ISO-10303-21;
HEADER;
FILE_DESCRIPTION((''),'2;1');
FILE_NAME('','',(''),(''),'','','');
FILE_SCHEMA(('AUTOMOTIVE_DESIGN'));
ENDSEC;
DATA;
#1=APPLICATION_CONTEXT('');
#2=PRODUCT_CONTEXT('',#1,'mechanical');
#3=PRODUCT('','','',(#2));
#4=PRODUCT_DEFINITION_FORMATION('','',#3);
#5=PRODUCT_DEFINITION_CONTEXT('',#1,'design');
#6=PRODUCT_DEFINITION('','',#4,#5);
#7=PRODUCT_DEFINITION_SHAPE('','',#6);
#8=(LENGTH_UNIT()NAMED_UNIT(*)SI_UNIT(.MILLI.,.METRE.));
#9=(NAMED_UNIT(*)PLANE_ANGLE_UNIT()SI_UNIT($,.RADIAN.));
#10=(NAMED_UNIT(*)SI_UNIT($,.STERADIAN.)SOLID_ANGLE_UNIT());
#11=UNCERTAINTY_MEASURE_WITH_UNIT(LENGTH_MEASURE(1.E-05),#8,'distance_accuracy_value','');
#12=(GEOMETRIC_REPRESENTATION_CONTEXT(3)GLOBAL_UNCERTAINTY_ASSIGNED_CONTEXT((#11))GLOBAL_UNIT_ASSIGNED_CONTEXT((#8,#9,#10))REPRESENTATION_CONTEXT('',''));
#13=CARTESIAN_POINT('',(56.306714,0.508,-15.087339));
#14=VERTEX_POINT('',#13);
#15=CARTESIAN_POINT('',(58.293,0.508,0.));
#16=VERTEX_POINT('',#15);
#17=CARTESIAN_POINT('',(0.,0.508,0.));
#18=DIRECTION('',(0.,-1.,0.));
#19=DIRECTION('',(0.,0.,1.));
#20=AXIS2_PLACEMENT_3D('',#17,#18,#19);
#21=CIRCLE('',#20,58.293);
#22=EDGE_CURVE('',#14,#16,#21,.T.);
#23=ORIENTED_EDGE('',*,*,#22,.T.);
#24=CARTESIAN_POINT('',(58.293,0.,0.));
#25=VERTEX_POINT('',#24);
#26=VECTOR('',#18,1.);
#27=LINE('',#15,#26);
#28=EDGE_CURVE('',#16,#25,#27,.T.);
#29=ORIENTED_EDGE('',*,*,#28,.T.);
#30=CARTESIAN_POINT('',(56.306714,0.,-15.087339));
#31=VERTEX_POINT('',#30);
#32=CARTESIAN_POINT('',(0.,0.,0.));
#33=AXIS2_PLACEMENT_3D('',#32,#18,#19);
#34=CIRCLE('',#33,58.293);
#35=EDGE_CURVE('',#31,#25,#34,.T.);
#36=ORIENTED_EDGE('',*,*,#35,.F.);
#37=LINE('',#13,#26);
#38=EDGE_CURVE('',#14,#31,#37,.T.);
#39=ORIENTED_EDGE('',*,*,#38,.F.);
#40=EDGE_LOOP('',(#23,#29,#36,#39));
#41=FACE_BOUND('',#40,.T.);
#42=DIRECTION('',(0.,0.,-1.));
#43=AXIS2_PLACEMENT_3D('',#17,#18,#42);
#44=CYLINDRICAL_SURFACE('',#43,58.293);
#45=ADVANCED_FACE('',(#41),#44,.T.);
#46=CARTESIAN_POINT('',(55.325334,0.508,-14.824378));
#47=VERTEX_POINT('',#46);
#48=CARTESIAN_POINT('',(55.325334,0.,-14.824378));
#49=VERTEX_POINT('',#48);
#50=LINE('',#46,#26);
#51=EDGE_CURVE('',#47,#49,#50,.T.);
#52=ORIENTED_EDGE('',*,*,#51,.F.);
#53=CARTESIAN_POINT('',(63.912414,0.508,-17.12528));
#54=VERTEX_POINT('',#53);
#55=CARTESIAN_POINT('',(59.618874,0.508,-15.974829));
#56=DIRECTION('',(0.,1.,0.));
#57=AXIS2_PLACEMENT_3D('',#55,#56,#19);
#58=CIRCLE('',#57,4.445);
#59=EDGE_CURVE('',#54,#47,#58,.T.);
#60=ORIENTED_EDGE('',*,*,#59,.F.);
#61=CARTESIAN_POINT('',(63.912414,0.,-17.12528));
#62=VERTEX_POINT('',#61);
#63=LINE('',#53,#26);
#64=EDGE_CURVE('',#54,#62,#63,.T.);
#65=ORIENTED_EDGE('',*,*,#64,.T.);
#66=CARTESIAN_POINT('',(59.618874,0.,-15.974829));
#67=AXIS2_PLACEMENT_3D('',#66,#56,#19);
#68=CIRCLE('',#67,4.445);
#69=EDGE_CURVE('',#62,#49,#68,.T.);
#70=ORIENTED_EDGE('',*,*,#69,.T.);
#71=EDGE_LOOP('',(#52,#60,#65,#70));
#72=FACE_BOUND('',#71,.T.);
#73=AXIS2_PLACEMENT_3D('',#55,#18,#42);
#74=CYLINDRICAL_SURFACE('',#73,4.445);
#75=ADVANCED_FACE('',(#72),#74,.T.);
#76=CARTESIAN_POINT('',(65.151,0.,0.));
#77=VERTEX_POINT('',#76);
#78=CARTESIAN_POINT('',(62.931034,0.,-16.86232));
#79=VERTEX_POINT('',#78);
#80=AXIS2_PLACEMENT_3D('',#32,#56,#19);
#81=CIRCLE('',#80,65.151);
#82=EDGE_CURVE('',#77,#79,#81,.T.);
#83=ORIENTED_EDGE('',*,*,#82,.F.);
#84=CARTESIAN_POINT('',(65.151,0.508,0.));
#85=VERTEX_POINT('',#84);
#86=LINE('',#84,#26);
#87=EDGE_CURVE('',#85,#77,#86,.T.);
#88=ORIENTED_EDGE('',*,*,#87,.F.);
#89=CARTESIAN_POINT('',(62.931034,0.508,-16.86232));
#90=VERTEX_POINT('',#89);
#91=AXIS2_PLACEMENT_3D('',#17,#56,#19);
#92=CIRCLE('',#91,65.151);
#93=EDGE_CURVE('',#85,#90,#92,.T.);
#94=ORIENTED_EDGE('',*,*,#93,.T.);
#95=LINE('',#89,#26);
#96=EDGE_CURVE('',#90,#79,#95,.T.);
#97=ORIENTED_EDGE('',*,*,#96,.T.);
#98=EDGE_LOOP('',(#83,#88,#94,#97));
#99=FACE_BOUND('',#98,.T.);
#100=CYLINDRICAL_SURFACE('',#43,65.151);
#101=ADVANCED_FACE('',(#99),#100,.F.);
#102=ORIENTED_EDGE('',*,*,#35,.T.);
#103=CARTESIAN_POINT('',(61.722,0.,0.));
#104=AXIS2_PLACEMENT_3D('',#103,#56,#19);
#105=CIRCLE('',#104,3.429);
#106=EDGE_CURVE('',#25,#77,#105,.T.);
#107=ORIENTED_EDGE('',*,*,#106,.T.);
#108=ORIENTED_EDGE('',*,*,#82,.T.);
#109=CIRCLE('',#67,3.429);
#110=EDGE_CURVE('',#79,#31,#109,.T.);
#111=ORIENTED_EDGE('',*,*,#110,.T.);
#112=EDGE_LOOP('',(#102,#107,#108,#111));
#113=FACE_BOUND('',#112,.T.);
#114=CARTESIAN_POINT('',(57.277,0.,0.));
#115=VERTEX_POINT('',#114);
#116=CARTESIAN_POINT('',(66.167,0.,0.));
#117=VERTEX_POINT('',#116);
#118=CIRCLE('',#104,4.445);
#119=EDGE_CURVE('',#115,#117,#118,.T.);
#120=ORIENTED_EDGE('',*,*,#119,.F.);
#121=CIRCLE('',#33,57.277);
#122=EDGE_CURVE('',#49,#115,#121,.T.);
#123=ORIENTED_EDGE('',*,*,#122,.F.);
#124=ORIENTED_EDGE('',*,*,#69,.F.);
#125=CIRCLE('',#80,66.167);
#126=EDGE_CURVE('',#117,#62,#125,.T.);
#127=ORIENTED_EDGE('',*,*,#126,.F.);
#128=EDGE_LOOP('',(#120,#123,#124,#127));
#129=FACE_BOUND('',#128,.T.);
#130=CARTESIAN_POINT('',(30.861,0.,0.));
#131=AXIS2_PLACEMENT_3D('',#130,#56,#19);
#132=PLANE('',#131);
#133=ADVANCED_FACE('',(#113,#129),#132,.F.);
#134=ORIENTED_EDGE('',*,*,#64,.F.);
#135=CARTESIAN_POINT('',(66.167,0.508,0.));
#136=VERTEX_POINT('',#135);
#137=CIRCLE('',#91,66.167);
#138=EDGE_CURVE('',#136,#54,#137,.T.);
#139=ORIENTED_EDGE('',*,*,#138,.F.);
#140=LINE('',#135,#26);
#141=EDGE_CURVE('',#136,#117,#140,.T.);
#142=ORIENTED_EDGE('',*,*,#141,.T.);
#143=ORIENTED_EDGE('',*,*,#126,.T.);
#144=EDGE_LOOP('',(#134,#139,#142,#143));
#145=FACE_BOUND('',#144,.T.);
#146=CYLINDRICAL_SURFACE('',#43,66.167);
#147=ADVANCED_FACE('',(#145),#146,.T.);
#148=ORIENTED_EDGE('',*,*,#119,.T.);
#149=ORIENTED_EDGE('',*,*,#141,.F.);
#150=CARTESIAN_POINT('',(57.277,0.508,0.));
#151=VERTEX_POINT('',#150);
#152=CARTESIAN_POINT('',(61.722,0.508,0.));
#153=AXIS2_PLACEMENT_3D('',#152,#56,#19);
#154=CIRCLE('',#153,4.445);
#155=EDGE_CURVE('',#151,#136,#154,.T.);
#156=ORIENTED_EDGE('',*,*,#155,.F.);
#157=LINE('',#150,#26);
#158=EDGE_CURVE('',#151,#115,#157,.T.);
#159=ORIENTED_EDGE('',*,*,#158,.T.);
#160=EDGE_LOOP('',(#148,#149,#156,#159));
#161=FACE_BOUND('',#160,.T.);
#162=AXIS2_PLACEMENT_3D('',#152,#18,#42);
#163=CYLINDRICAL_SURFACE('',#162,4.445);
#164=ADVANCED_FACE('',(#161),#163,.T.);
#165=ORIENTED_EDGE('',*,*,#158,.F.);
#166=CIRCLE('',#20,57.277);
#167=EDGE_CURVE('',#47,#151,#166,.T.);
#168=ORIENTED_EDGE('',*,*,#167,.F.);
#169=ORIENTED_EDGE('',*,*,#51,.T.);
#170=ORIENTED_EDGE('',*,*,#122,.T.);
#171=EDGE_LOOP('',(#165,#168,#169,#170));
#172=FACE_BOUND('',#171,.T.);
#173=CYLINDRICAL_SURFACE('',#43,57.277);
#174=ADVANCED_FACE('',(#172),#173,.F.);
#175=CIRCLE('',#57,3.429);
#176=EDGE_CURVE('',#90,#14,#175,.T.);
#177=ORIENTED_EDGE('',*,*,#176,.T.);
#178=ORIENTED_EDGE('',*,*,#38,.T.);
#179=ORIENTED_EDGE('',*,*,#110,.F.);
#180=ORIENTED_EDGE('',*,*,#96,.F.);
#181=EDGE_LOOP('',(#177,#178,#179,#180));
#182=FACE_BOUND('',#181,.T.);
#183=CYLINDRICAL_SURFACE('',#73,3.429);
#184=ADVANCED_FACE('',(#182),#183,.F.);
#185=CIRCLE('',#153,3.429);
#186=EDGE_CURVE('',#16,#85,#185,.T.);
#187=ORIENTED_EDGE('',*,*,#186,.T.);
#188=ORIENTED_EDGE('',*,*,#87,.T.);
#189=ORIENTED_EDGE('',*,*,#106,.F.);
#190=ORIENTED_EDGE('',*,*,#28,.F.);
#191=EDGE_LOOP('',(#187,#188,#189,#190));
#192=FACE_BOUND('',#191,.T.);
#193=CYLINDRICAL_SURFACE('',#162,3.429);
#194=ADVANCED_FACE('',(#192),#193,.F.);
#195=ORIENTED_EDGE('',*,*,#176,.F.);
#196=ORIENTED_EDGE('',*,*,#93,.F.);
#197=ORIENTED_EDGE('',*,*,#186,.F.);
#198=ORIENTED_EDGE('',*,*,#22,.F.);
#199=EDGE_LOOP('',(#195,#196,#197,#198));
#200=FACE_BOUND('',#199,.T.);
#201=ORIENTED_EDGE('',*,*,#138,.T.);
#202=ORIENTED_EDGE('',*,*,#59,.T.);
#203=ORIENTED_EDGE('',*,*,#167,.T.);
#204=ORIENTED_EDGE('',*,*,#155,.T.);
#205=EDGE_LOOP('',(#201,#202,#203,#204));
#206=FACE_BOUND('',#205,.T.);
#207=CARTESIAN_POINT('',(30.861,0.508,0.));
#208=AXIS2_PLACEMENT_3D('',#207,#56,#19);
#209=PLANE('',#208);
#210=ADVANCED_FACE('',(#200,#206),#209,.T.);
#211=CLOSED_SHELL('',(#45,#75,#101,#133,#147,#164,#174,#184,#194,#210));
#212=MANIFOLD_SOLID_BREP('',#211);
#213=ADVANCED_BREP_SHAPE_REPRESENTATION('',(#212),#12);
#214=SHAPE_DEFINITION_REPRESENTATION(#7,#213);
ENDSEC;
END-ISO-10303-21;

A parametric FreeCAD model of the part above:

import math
import FreeCAD as App
import Part
import Sketcher
from FreeCAD import Vector
Q = App.Units.Quantity

doc = App.newDocument("Part")
body = doc.addObject("PartDesign::Body", "Body")

# Sketch on XZ plane
sketch1 = body.newObject("Sketcher::SketchObject", "Sketch")
sketch1.AttachmentSupport = (doc.getObject("XZ_Plane"), [""])
sketch1.MapMode = "FlatFace"
sketch1.addGeometry(Part.ArcOfCircle(Part.Circle(Vector(0, 0, 0), Vector(0, 0, 1), 66.167), math.radians(-15), math.radians(0)), False)
sketch1.addGeometry(Part.ArcOfCircle(Part.Circle(Vector(59.618874, -15.974829, 0), Vector(0, 0, 1), 4.445), math.radians(165), math.radians(345)), False)
sketch1.addGeometry(Part.ArcOfCircle(Part.Circle(Vector(0, 0, 0), Vector(0, 0, 1), 57.277), math.radians(-15), math.radians(0)), False)
sketch1.addGeometry(Part.ArcOfCircle(Part.Circle(Vector(61.722, 0, 0), Vector(0, 0, 1), 4.445), math.radians(0), math.radians(180)), False)
sketch1.addGeometry(Part.ArcOfCircle(Part.Circle(Vector(0, 0, 0), Vector(0, 0, 1), 65.151), math.radians(-15), math.radians(0)), False)
sketch1.addGeometry(Part.ArcOfCircle(Part.Circle(Vector(61.722, 0, 0), Vector(0, 0, 1), 3.429), math.radians(0), math.radians(180)), False)
sketch1.addGeometry(Part.ArcOfCircle(Part.Circle(Vector(0, 0, 0), Vector(0, 0, 1), 58.293), math.radians(-15), math.radians(0)), False)
sketch1.addGeometry(Part.ArcOfCircle(Part.Circle(Vector(59.618874, -15.974829, 0), Vector(0, 0, 1), 3.429), math.radians(165), math.radians(345)), False)
sketch1.addConstraint(Sketcher.Constraint("Coincident", 0, 1, 1, 2))
sketch1.addConstraint(Sketcher.Constraint("Coincident", 1, 1, 2, 1))
sketch1.addConstraint(Sketcher.Constraint("Coincident", 2, 2, 3, 2))
sketch1.addConstraint(Sketcher.Constraint("Coincident", 3, 1, 0, 2))
sketch1.addConstraint(Sketcher.Constraint("Coincident", 4, 2, 5, 1))
sketch1.addConstraint(Sketcher.Constraint("Coincident", 5, 2, 6, 2))
sketch1.addConstraint(Sketcher.Constraint("Coincident", 6, 1, 7, 1))
sketch1.addConstraint(Sketcher.Constraint("Coincident", 7, 2, 4, 1))
sketch1.addConstraint(Sketcher.Constraint("Coincident", 0, 3, -1, 1))
sketch1.addConstraint(Sketcher.Constraint("Coincident", 2, 3, -1, 1))
sketch1.addConstraint(Sketcher.Constraint("Coincident", 4, 3, -1, 1))
sketch1.addConstraint(Sketcher.Constraint("Coincident", 6, 3, -1, 1))
sketch1.addConstraint(Sketcher.Constraint("Coincident", 5, 3, 3, 3))
sketch1.addConstraint(Sketcher.Constraint("PointOnObject", 3, 3, -1))
sketch1.addConstraint(Sketcher.Constraint("PointOnObject", 2, 2, -1))
sketch1.addConstraint(Sketcher.Constraint("PointOnObject", 3, 1, -1))
sketch1.addConstraint(Sketcher.Constraint("PointOnObject", 4, 2, -1))
sketch1.addConstraint(Sketcher.Constraint("PointOnObject", 5, 2, -1))
sketch1.addConstraint(Sketcher.Constraint("Radius", 0, Q("2.605 in")))
sketch1.addConstraint(Sketcher.Constraint("Radius", 1, Q("0.175 in")))
sketch1.addConstraint(Sketcher.Constraint("Radius", 4, Q("2.565 in")))
sketch1.addConstraint(Sketcher.Constraint("DistanceX", 6, 1, 1, 3, Q("0.1304 in")))
sketch1.addConstraint(Sketcher.Constraint("DistanceX", 6, 1, 7, 3, Q("0.1304 in")))
sketch1.addConstraint(Sketcher.Constraint("DistanceX", 7, 3, 7, 2, Q("0.1304 in")))
sketch1.addConstraint(Sketcher.Constraint("DistanceY", 0, 1, 1, 1, 2.300901))
sketch1.addConstraint(Sketcher.Constraint("DistanceX", 6, 1, 0, 1, 7.6057))
sketch1.addConstraint(Sketcher.Constraint("DistanceY", 1, 3, -1, 1, 15.974829))
pad1 = body.newObject("PartDesign::Pad", "Pad")
pad1.Profile = sketch1
pad1.Length = Q("0.02 in")
pad1.Reversed = True

doc.recompute()
